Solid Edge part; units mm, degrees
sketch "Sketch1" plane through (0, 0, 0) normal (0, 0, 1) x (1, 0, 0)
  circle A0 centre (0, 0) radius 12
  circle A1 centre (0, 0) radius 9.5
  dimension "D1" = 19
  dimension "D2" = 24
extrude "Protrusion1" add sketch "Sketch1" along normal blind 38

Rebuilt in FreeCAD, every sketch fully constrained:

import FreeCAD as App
import Part
import Sketcher
from FreeCAD import Vector
Q = App.Units.Quantity

doc = App.newDocument("Part")
params = doc.addObject("Spreadsheet::Sheet", "Params")
for row, (alias, value) in enumerate([
    ("sketch1_diameter", "24 mm"),
    ("sketch1_diameter2", "19 mm"),
    ("pad1_length", "38 mm"),
], start=1):
    params.set(f"A{row}", alias)
    params.set(f"B{row}", "=" + value)
    params.setAlias(f"B{row}", alias)

body = doc.addObject("PartDesign::Body", "Body")

# Sketch on XY plane
sketch1 = body.newObject("Sketcher::SketchObject", "Sketch")
sketch1.AttachmentSupport = (doc.getObject("XY_Plane"), [""])
sketch1.MapMode = "FlatFace"
sketch1.addGeometry(Part.Circle(Vector(0, 0, 0), Vector(0, 0, 1), 12), False)
sketch1.addGeometry(Part.Circle(Vector(0, 0, 0), Vector(0, 0, 1), 9.5), False)
sketch1.addConstraint(Sketcher.Constraint("Coincident", 0, 3, -1, 1))
sketch1.addConstraint(Sketcher.Constraint("Coincident", 1, 3, -1, 1))
sketch1.addConstraint(Sketcher.Constraint("Diameter", 0, Q("24 mm")))
sketch1.addConstraint(Sketcher.Constraint("Diameter", 1, Q("19 mm")))
sketch1.setExpression("Constraints[2]", "Params.sketch1_diameter")
sketch1.setExpression("Constraints[3]", "Params.sketch1_diameter2")
pad1 = body.newObject("PartDesign::Pad", "Pad")
pad1.Profile = sketch1
pad1.setExpression("Length", "Params.pad1_length")

doc.recompute()
